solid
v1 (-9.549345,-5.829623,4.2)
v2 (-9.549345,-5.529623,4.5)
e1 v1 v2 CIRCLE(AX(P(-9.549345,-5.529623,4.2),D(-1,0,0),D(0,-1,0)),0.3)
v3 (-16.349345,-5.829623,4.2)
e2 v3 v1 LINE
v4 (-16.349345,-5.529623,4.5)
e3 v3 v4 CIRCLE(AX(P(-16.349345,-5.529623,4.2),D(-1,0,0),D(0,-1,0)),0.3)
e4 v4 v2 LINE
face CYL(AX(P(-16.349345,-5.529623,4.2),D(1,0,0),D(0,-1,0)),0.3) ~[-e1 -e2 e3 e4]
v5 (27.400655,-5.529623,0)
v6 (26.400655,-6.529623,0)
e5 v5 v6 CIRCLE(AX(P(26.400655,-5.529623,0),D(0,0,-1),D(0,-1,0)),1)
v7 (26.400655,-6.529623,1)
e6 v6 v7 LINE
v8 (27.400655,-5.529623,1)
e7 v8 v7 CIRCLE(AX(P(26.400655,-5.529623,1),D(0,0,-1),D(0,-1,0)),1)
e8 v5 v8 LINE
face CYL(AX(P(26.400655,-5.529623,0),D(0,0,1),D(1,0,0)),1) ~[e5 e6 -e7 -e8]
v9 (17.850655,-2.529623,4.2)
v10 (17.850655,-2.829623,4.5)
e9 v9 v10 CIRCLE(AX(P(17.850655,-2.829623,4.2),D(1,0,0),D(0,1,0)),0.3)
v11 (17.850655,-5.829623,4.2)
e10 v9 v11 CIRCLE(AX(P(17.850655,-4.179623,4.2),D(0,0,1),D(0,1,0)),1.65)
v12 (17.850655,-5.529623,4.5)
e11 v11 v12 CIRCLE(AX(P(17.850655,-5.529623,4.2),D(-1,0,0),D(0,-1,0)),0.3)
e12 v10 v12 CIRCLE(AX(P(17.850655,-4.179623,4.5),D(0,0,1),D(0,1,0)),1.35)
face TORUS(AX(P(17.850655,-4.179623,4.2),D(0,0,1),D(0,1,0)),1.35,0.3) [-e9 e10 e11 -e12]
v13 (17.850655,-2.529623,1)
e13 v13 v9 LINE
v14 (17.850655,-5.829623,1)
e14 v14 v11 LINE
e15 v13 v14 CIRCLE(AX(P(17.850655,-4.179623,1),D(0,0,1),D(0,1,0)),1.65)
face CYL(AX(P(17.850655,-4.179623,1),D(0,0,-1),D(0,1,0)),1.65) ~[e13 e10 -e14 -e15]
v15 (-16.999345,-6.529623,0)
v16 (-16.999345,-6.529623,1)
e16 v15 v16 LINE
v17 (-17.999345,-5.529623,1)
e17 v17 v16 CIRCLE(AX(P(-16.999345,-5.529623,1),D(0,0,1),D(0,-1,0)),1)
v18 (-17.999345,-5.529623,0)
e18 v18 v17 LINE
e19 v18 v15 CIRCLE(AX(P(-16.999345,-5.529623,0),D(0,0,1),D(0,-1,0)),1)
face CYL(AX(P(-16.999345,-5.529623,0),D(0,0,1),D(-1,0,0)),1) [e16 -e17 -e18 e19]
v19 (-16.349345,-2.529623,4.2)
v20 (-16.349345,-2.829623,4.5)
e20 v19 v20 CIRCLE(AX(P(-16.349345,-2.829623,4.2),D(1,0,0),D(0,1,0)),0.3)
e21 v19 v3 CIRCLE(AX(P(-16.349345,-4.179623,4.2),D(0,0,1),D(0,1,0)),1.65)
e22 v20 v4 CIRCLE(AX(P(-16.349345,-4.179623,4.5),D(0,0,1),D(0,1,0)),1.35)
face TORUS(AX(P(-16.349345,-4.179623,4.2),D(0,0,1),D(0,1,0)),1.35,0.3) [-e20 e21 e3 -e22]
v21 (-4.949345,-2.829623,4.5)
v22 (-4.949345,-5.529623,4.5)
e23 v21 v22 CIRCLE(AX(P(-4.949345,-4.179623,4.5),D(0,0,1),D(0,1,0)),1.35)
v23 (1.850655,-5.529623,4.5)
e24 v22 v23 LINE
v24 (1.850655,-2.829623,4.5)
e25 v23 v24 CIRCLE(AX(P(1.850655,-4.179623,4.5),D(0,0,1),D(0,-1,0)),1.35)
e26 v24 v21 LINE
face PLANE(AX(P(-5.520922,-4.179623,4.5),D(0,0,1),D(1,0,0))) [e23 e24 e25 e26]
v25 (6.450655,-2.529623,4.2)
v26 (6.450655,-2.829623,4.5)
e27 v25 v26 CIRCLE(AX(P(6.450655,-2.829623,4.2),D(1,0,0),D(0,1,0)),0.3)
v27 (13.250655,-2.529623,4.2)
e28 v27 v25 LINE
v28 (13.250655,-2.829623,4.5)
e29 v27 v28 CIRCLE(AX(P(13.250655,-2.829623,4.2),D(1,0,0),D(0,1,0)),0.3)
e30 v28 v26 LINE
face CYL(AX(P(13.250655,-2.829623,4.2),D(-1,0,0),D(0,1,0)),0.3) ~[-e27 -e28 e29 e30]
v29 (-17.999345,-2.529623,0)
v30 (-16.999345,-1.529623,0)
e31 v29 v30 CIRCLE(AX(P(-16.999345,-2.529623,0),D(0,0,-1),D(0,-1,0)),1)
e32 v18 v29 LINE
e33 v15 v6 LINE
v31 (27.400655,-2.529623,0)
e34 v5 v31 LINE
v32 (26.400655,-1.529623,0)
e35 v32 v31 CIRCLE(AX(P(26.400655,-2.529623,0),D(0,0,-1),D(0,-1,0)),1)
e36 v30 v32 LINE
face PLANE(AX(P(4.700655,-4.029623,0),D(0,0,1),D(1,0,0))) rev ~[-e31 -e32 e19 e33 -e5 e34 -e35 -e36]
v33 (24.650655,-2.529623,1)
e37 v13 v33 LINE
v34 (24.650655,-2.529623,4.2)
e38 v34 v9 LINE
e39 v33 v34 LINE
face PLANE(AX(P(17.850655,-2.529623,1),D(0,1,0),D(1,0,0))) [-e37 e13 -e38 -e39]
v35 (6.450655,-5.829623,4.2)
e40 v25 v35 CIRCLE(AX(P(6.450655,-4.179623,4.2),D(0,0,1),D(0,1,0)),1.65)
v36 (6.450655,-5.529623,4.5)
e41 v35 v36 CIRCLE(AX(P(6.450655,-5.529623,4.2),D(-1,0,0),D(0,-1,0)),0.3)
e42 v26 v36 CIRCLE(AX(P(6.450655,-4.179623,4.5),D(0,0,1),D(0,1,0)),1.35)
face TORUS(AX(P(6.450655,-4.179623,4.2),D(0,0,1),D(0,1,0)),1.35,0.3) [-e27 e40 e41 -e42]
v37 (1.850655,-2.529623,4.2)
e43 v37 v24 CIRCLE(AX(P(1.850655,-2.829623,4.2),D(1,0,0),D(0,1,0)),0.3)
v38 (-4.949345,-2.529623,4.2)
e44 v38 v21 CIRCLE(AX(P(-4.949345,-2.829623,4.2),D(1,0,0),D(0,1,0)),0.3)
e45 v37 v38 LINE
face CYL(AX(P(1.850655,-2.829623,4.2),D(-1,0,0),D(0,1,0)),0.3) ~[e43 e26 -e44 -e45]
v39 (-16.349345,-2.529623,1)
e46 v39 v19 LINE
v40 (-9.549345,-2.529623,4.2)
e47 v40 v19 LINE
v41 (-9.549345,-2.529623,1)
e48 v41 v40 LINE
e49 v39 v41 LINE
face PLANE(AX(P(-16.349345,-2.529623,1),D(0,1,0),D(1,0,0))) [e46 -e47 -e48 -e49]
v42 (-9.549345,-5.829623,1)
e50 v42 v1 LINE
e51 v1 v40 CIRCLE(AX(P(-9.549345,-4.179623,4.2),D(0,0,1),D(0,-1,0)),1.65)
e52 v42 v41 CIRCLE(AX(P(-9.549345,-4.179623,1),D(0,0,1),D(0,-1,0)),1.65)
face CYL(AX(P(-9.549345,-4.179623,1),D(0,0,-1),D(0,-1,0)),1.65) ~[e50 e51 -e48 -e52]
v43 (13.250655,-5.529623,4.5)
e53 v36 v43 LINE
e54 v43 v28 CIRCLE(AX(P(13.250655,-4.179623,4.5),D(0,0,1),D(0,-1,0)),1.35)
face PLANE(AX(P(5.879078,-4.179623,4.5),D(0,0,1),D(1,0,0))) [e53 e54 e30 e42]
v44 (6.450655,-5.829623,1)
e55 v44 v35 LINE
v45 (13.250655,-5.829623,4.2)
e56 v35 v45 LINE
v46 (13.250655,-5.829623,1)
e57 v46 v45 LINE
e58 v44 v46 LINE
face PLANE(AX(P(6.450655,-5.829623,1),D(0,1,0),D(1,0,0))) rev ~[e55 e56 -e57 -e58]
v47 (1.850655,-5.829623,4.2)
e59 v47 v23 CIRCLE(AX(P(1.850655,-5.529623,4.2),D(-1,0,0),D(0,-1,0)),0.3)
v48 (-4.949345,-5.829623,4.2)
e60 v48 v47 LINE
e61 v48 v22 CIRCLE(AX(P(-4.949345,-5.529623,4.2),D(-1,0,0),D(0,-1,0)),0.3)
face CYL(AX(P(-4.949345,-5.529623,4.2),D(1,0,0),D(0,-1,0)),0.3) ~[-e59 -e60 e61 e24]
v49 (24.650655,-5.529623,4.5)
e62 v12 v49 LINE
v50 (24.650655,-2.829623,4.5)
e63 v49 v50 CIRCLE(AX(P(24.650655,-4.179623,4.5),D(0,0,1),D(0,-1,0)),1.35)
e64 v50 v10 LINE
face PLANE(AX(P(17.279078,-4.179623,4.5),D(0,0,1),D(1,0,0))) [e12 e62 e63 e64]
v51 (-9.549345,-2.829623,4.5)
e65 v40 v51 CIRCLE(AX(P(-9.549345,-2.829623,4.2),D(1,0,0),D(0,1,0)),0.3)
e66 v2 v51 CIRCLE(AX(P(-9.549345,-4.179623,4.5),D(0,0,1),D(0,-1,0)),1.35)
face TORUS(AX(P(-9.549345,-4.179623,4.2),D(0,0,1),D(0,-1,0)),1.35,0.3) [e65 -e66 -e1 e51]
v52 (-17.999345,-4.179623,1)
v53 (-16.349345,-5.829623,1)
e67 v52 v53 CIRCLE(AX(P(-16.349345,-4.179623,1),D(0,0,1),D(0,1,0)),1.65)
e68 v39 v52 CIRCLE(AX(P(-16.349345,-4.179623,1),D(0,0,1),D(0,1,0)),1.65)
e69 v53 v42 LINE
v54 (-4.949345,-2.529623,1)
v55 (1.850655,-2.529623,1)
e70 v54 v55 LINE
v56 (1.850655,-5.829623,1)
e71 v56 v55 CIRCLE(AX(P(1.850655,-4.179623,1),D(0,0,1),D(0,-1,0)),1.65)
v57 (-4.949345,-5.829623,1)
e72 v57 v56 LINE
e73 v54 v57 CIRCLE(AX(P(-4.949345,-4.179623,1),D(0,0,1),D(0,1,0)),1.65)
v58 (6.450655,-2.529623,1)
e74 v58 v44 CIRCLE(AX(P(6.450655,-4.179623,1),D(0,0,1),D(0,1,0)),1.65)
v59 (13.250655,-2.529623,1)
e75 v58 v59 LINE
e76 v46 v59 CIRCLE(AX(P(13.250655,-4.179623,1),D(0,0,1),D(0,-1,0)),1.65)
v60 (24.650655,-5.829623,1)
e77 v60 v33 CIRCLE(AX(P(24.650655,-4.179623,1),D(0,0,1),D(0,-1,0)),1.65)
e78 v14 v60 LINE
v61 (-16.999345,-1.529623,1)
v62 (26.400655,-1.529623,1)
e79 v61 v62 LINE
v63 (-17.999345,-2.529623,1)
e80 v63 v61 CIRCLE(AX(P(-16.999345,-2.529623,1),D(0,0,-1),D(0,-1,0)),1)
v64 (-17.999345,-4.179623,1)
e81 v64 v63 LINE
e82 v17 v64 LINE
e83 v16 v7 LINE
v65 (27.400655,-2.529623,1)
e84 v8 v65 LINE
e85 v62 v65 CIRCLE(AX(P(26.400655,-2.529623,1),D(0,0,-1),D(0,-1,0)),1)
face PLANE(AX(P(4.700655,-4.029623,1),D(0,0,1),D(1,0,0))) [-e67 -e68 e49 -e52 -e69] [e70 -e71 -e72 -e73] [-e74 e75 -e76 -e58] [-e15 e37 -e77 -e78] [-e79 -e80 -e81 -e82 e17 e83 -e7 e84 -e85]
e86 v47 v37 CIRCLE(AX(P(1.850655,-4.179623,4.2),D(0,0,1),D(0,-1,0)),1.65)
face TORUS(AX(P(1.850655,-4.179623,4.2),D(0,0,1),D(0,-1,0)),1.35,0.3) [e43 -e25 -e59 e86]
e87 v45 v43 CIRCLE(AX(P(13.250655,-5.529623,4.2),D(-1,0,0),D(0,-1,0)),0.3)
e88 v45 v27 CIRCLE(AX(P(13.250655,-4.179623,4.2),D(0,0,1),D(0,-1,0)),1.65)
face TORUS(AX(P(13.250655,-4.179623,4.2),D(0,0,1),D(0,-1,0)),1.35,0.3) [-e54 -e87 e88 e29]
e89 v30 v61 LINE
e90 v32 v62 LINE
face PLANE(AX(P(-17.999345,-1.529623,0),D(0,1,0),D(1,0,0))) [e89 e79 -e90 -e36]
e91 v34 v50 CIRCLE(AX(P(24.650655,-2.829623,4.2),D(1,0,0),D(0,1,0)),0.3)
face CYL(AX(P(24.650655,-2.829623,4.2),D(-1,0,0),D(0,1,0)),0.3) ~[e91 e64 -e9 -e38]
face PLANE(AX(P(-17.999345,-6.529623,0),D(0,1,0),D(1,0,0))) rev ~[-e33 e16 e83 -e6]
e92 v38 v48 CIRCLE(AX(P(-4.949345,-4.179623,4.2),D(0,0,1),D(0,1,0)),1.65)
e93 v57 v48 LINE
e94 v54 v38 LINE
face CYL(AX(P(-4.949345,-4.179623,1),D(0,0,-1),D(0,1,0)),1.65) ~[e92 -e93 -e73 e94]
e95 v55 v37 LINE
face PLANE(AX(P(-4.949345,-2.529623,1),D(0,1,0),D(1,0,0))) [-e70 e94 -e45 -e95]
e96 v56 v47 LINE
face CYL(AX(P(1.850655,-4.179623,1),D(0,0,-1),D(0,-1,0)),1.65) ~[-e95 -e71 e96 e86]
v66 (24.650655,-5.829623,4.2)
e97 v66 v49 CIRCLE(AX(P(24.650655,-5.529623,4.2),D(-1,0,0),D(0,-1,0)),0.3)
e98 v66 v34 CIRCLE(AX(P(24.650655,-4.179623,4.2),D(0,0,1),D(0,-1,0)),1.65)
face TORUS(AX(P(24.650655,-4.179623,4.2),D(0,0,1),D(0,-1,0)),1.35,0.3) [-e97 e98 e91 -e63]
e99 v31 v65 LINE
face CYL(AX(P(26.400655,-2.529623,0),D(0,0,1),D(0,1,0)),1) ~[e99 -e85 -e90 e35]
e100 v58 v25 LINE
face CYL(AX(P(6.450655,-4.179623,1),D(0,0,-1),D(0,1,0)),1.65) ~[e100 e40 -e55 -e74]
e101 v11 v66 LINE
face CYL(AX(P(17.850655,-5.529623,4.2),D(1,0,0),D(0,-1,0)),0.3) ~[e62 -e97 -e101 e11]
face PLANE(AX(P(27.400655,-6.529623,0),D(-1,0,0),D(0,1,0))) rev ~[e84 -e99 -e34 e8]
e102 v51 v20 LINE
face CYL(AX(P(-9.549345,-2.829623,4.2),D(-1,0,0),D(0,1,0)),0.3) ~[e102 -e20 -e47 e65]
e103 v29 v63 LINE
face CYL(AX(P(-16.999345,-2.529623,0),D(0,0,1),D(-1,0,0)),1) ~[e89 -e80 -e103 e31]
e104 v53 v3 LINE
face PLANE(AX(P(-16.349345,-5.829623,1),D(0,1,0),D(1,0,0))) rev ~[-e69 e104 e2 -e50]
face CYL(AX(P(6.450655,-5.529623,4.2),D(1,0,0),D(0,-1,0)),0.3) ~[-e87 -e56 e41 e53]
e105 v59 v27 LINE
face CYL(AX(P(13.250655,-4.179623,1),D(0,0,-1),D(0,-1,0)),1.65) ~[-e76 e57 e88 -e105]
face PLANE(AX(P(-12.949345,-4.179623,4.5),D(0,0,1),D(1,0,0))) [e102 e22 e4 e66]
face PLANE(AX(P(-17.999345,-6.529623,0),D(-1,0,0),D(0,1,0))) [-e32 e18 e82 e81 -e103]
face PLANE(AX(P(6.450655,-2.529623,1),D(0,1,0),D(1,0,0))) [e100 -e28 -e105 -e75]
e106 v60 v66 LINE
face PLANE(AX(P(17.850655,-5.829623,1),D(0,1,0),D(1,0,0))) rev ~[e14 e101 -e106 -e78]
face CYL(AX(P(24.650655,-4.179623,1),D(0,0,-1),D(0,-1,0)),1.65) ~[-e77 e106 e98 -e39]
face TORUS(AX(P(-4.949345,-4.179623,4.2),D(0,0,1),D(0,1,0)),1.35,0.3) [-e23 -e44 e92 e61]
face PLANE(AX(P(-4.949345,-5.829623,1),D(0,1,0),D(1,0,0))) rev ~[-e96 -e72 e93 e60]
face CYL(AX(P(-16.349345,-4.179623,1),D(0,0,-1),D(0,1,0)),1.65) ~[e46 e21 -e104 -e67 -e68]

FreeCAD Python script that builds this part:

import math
import FreeCAD as App
import Part
import Sketcher
Q = App.Units.Quantity


def edges_at(feature, points):
    """Names of the edges that pass closest to the given points."""
    edges = feature.Shape.Edges
    near = lambda p: min(range(len(edges)), key=lambda i: edges[i].distToShape(Part.Vertex(*p))[0])
    return sorted({f"Edge{near(p) + 1}" for p in points})

doc = App.newDocument("Part")
body = doc.addObject("PartDesign::Body", "Body")

sketch1 = body.newObject("Sketcher::SketchObject", "Sketch")
sketch1.AttachmentSupport = (doc.getObject("XY_Plane"), [""])
sketch1.MapMode = "FlatFace"
sketch1.addGeometry([
    Part.LineSegment(App.Vector(-18, -2, 0), App.Vector(-18, -7, 0)),
    Part.LineSegment(App.Vector(-18, -7, 0), App.Vector(27, -7, 0)),
    Part.LineSegment(App.Vector(27, -7, 0), App.Vector(27, -2, 0)),
    Part.LineSegment(App.Vector(27, -2, 0), App.Vector(-18, -2, 0)),
], False)
sketch1.addConstraint([
    Sketcher.Constraint("Coincident", 0, 2, 1, 1),
    Sketcher.Constraint("Coincident", 1, 2, 2, 1),
    Sketcher.Constraint("Coincident", 2, 2, 3, 1),
    Sketcher.Constraint("Coincident", 3, 2, 0, 1),
    Sketcher.Constraint("Vertical", 0),
    Sketcher.Constraint("Horizontal", 1),
    Sketcher.Constraint("Vertical", 2),
    Sketcher.Constraint("Horizontal", 3),
    Sketcher.Constraint("DistanceY", 0, 2, 0, 1, Q("5 mm")),
    Sketcher.Constraint("DistanceX", 1, 1, 1, 2, Q("45.4 mm")),
    Sketcher.Constraint("DistanceX", 0, 2, -1, 1, Q("17.999345 mm")),
    Sketcher.Constraint("DistanceY", 0, 2, -1, 1, Q("6.529623 mm")),
])
pad1 = body.newObject("PartDesign::Pad", "Pad")
pad1.Profile = sketch1
pad1.Length = 1

sketch2 = body.newObject("Sketcher::SketchObject", "Sketch001")
sketch2.AttachmentSupport = (doc.getObject("XY_Plane"), [""])
sketch2.MapMode = "FlatFace"
sketch2.AttachmentOffset = App.Placement(App.Vector(0, 0, 1), App.Rotation())
sketch2.addGeometry([
    Part.LineSegment(App.Vector(-16.3, -5.8, 0), App.Vector(-9.5, -5.8, 0)),
    Part.ArcOfCircle(Part.Circle(App.Vector(-9.5, -4.2, 0), App.Vector(0, 0, 1), 1.6), math.radians(-90), math.radians(90)),
    Part.LineSegment(App.Vector(-9.5, -2.5, 0), App.Vector(-16.3, -2.5, 0)),
    Part.ArcOfCircle(Part.Circle(App.Vector(-16.3, -4.2, 0), App.Vector(0, 0, 1), 1.6), math.radians(90), math.radians(270)),
    Part.ArcOfCircle(Part.Circle(App.Vector(-4.9, -4.2, 0), App.Vector(0, 0, 1), 1.6), math.radians(90), math.radians(270)),
    Part.LineSegment(App.Vector(-4.9, -5.8, 0), App.Vector(1.9, -5.8, 0)),
    Part.ArcOfCircle(Part.Circle(App.Vector(1.9, -4.2, 0), App.Vector(0, 0, 1), 1.6), math.radians(-90), math.radians(90)),
    Part.LineSegment(App.Vector(1.9, -2.5, 0), App.Vector(-4.9, -2.5, 0)),
    Part.ArcOfCircle(Part.Circle(App.Vector(6.5, -4.2, 0), App.Vector(0, 0, 1), 1.6), math.radians(90), math.radians(270)),
    Part.LineSegment(App.Vector(6.5, -5.8, 0), App.Vector(13.3, -5.8, 0)),
    Part.ArcOfCircle(Part.Circle(App.Vector(13.3, -4.2, 0), App.Vector(0, 0, 1), 1.6), math.radians(-90), math.radians(90)),
    Part.LineSegment(App.Vector(13.3, -2.5, 0), App.Vector(6.5, -2.5, 0)),
    Part.ArcOfCircle(Part.Circle(App.Vector(17.9, -4.2, 0), App.Vector(0, 0, 1), 1.6), math.radians(90), math.radians(270)),
    Part.LineSegment(App.Vector(17.9, -5.8, 0), App.Vector(24.7, -5.8, 0)),
    Part.ArcOfCircle(Part.Circle(App.Vector(24.7, -4.2, 0), App.Vector(0, 0, 1), 1.6), math.radians(-90), math.radians(90)),
    Part.LineSegment(App.Vector(24.7, -2.5, 0), App.Vector(17.9, -2.5, 0)),
], False)
sketch2.addConstraint([
    Sketcher.Constraint("Tangent", 0, 2, 1, 1),
    Sketcher.Constraint("Tangent", 1, 2, 2, 1),
    Sketcher.Constraint("Tangent", 2, 2, 3, 1),
    Sketcher.Constraint("Tangent", 3, 2, 0, 1),
    Sketcher.Constraint("Tangent", 4, 2, 5, 1),
    Sketcher.Constraint("Tangent", 5, 2, 6, 1),
    Sketcher.Constraint("Tangent", 6, 2, 7, 1),
    Sketcher.Constraint("Tangent", 7, 2, 4, 1),
    Sketcher.Constraint("Tangent", 8, 2, 9, 1),
    Sketcher.Constraint("Tangent", 9, 2, 10, 1),
    Sketcher.Constraint("Tangent", 10, 2, 11, 1),
    Sketcher.Constraint("Tangent", 11, 2, 8, 1),
    Sketcher.Constraint("Tangent", 12, 2, 13, 1),
    Sketcher.Constraint("Tangent", 13, 2, 14, 1),
    Sketcher.Constraint("Tangent", 14, 2, 15, 1),
    Sketcher.Constraint("Tangent", 15, 2, 12, 1),
    Sketcher.Constraint("Horizontal", 0),
    Sketcher.Constraint("Horizontal", 2),
    Sketcher.Constraint("Horizontal", 5),
    Sketcher.Constraint("Horizontal", 7),
    Sketcher.Constraint("Horizontal", 9),
    Sketcher.Constraint("Horizontal", 11),
    Sketcher.Constraint("Horizontal", 13),
    Sketcher.Constraint("Horizontal", 15),
    Sketcher.Constraint("Equal", 3, 4),
    Sketcher.Constraint("Equal", 6, 8),
    Sketcher.Constraint("Equal", 10, 12),
    Sketcher.Constraint("Horizontal", 3, 3, 4, 3),
    Sketcher.Constraint("Horizontal", 6, 3, 8, 3),
    Sketcher.Constraint("Horizontal", 10, 3, 12, 3),
    Sketcher.Constraint("Equal", 2, 5),
    Sketcher.Constraint("Equal", 7, 9),
    Sketcher.Constraint("Equal", 11, 13),
    Sketcher.Constraint("Radius", 1, Q("1.65 mm")),
    Sketcher.Constraint("DistanceX", 0, 1, 0, 2, Q("6.8 mm")),
    Sketcher.Constraint("DistanceX", 1, 3, 8, 3, Q("16 mm")),
    Sketcher.Constraint("DistanceX", 6, 3, 12, 3, Q("16 mm")),
    Sketcher.Constraint("DistanceX", 1, 3, 4, 3, Q("4.6 mm")),
    Sketcher.Constraint("DistanceX", 1, 3, -1, 1, Q("9.549345 mm")),
    Sketcher.Constraint("DistanceY", 1, 3, -1, 1, Q("4.179623 mm")),
])
pad2 = body.newObject("PartDesign::Pad", "Pad001")
pad2.Profile = sketch2
pad2.Length = 3.5
doc.recompute()

fillet = body.newObject("PartDesign::Fillet", "Fillet")
fillet.Base = (pad2, edges_at(pad2, [
    (-17.999, -1.53, 0.5),
    (-17.999, -6.53, 0.5),
    (27.401, -1.53, 0.5),
    (27.401, -6.53, 0.5),
]))
fillet.Radius = 1
doc.recompute()

fillet2 = body.newObject("PartDesign::Fillet", "Fillet001")
fillet2.Base = (fillet, edges_at(fillet, [
    (-17.999, -4.18, 4.5),
    (-6.599, -4.18, 4.5),
    (4.801, -4.18, 4.5),
    (16.201, -4.18, 4.5),
]))
fillet2.Radius = 0.3

doc.recompute()
